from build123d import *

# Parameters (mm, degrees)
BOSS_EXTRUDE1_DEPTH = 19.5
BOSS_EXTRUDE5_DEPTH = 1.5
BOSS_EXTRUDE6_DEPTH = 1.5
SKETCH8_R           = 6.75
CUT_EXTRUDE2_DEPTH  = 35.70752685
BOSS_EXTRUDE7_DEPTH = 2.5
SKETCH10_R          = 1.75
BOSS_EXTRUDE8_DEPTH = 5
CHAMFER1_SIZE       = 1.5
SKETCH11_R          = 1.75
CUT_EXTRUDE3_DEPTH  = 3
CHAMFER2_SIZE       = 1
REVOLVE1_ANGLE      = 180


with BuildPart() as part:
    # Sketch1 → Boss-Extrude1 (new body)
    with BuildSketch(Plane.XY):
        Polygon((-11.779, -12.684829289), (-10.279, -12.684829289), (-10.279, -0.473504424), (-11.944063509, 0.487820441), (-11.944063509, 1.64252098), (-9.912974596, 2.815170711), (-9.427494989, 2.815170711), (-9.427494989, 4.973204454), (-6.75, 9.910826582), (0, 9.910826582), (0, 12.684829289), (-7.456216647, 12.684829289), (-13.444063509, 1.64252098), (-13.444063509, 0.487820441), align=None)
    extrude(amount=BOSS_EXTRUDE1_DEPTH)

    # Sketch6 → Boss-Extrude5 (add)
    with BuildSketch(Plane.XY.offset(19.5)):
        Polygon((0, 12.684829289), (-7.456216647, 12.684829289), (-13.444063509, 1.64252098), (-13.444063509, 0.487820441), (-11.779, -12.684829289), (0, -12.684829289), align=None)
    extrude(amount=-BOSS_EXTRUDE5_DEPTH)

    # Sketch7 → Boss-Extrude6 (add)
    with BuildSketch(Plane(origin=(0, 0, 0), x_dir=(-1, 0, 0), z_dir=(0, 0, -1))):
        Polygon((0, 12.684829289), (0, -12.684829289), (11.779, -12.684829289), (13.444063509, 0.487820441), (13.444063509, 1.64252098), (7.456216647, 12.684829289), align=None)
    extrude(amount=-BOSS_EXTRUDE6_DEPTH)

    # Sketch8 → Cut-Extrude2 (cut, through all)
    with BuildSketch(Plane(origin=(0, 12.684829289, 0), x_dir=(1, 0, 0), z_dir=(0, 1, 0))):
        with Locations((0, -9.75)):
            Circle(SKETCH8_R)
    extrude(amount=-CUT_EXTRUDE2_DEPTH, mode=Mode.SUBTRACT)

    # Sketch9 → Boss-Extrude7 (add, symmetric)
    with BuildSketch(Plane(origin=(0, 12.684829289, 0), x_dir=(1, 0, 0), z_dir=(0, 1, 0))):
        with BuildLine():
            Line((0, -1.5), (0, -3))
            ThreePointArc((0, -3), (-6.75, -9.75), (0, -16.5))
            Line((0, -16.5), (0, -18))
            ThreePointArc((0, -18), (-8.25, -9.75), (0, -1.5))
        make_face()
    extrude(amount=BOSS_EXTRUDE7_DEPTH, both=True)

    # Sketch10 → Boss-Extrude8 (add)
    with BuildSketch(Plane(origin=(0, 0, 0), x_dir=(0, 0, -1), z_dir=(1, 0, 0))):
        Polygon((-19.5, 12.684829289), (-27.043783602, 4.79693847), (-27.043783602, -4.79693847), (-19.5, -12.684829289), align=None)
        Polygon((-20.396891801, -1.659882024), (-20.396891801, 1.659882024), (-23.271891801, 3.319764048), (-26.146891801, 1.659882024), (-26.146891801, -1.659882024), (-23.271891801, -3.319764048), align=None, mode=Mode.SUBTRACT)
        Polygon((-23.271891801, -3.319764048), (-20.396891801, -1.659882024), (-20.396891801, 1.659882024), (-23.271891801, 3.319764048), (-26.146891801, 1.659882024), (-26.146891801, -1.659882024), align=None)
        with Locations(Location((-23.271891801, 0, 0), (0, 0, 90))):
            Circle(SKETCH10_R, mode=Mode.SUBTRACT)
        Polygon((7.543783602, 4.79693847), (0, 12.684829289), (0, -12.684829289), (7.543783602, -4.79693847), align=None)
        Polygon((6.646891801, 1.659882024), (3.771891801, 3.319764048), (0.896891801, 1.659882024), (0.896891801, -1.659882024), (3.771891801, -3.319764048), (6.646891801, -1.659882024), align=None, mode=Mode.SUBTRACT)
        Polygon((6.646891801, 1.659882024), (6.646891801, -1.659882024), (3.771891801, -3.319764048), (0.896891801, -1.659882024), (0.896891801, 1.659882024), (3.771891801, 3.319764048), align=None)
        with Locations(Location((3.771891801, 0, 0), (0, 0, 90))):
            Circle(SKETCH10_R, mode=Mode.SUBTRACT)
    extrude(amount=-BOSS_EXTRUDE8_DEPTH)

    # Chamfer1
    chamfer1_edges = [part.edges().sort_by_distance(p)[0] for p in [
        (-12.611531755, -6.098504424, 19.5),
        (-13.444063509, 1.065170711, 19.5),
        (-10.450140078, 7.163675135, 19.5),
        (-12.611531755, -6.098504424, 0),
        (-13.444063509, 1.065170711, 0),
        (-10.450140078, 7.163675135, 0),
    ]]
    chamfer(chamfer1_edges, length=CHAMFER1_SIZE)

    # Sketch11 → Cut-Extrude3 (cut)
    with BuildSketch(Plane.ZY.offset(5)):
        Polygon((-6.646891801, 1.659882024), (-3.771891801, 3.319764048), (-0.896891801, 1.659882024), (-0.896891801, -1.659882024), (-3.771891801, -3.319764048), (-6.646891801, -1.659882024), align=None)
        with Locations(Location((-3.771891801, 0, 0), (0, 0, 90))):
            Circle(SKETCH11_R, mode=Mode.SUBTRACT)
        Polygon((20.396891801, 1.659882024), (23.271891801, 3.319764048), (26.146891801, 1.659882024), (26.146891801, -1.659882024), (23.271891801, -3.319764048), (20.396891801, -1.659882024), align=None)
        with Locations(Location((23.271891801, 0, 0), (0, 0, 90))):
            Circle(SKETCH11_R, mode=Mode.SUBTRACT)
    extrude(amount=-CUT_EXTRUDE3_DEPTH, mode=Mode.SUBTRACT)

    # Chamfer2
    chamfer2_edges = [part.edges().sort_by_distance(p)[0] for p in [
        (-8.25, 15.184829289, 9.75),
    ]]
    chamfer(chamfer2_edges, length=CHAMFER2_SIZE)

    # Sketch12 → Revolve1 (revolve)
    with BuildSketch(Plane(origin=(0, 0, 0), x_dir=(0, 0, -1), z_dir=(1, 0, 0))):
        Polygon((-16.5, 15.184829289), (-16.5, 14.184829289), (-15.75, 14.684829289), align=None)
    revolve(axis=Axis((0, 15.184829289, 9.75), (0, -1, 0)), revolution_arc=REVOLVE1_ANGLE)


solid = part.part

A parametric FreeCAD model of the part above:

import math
import FreeCAD as App
import Part
import Sketcher

V = App.Vector
Q = App.Units.Quantity


def edges_at(feature, points):
    """Names of the edges that pass closest to the given points."""
    edges = feature.Shape.Edges
    near = lambda p: min(range(len(edges)), key=lambda i: edges[i].distToShape(Part.Vertex(*p))[0])
    return sorted({f"Edge{near(p) + 1}" for p in points})


def add_polygon(sketch, points):
    """Adds a closed chain of lines whose ends are joined by coincident constraints."""
    first, n = sketch.GeometryCount, len(points)
    for a, b in zip(points, points[1:] + points[:1]):
        sketch.addGeometry(Part.LineSegment(App.Vector(*a, 0), App.Vector(*b, 0)), False)
    for i in range(n):
        sketch.addConstraint(Sketcher.Constraint("Coincident", first + i, 2, first + (i + 1) % n, 1))

doc = App.newDocument("Part")
body = doc.addObject("PartDesign::Body", "Body")

# Sketch on XY plane
sketch1 = doc.addObject("Sketcher::SketchObject", "Sketch")
body.addObject(sketch1)
sketch1.AttachmentSupport = (doc.XY_Plane, [""])
sketch1.MapMode = "FlatFace"
add_polygon(sketch1, [(-11.779, -12.684829), (-10.279, -12.684829), (-10.279, -0.473504), (-11.944064, 0.48782), (-11.944064, 1.642521), (-9.912975, 2.815171), (-9.427495, 2.815171), (-9.427495, 4.973204), (-6.75, 9.910827), (0, 9.910827), (0, 12.684829), (-7.456217, 12.684829), (-13.444064, 1.642521), (-13.444064, 0.48782)])  # lines 0-13
sketch1.addConstraint([
    Sketcher.Constraint("Horizontal", 0),
    Sketcher.Constraint("Vertical", 1),
    Sketcher.Constraint("Vertical", 3),
    Sketcher.Constraint("Horizontal", 5),
    Sketcher.Constraint("Vertical", 6),
    Sketcher.Constraint("Horizontal", 8),
    Sketcher.Constraint("Vertical", 9),
    Sketcher.Constraint("Horizontal", 10),
    Sketcher.Constraint("Vertical", 12),
    Sketcher.Constraint("PointOnObject", 8, 2, -2),
    Sketcher.Constraint("Parallel", 7, 11),
    Sketcher.Constraint("Horizontal", 3, 2, 11, 2),
    Sketcher.Constraint("Horizontal", 2, 2, 12, 2),
    Sketcher.Constraint("Angle", 2, Q("150 deg")),
    Sketcher.Constraint("Angle", 4, Q("30 deg")),
    Sketcher.Constraint("DistanceX", 0, 1, 0, 2, 1.5),
    Sketcher.Constraint("DistanceX", 8, 1, 8, 2, 6.75),
    Sketcher.Constraint("DistanceY", 0, 2, 4, 2, 15.5),
    Sketcher.Constraint("DistanceX", 11, 2, 3, 2, 1.5),
    Sketcher.Constraint("DistanceY", 3, 1, 3, 2, 1.154701),
    Sketcher.Constraint("DistanceX", 0, 2, -1, 1, 10.279),
    Sketcher.Constraint("Distance", 4, 2.345299),
    Sketcher.Constraint("DistanceX", 5, 1, 5, 2, 0.48548),
    Sketcher.Constraint("Distance", 2, 1.92265),
    Sketcher.Constraint("DistanceX", 10, 2, 10, 1, 7.456217),
    Sketcher.Constraint("DistanceY", 6, 1, 6, 2, 2.158034),
    Sketcher.Constraint("DistanceY", 9, 1, 9, 2, 2.774003),
    Sketcher.Constraint("DistanceY", 0, 2, -1, 1, 12.684829),
])
pad1 = doc.addObject("PartDesign::Pad", "Pad")
body.addObject(pad1)
pad1.Profile = sketch1
pad1.Length = 19.5

# Sketch on XY plane
sketch2 = doc.addObject("Sketcher::SketchObject", "Sketch001")
body.addObject(sketch2)
sketch2.AttachmentSupport = (doc.XY_Plane, [""])
sketch2.MapMode = "FlatFace"
sketch2.AttachmentOffset = App.Placement(V(0, 0, 19.5), App.Rotation())
add_polygon(sketch2, [(0, 12.684829), (-7.456217, 12.684829), (-13.444064, 1.642521), (-13.444064, 0.48782), (-11.779, -12.684829), (0, -12.684829)])  # lines 0-5
sketch2.addConstraint([
    Sketcher.Constraint("Horizontal", 0),
    Sketcher.Constraint("Vertical", 2),
    Sketcher.Constraint("Horizontal", 4),
    Sketcher.Constraint("Vertical", 5),
    Sketcher.Constraint("Symmetric", 4, 2, 5, 2, -1, 1),
    Sketcher.Constraint("DistanceX", 4, 1, 4, 2, 11.779),
    Sketcher.Constraint("DistanceY", 2, 2, 2, 1, 1.154701),
    Sketcher.Constraint("DistanceY", 5, 1, 5, 2, 25.369659),
    Sketcher.Constraint("DistanceX", 0, 2, 0, 1, 7.456217),
    Sketcher.Constraint("DistanceY", -1, 1, 1, 2, 1.642521),
    Sketcher.Constraint("Distance", 1, 12.561325),
])
pad2 = doc.addObject("PartDesign::Pad", "Pad001")
body.addObject(pad2)
pad2.Profile = sketch2
pad2.Length = 1.5
pad2.Reversed = True

# Sketch on XY plane
sketch3 = doc.addObject("Sketcher::SketchObject", "Sketch002")
body.addObject(sketch3)
sketch3.AttachmentSupport = (doc.XY_Plane, [""])
sketch3.MapMode = "FlatFace"
add_polygon(sketch3, [(0, 12.684829), (0, -12.684829), (-11.779, -12.684829), (-13.444064, 0.48782), (-13.444064, 1.642521), (-7.456217, 12.684829)])  # lines 0-5
sketch3.addConstraint([
    Sketcher.Constraint("Vertical", 0),
    Sketcher.Constraint("Horizontal", 1),
    Sketcher.Constraint("Vertical", 3),
    Sketcher.Constraint("Horizontal", 5),
    Sketcher.Constraint("Symmetric", 0, 2, 5, 2, -1, 1),
    Sketcher.Constraint("DistanceX", 1, 2, 1, 1, 11.779),
    Sketcher.Constraint("DistanceY", 3, 1, 3, 2, 1.154701),
    Sketcher.Constraint("DistanceY", 0, 2, 0, 1, 25.369659),
    Sketcher.Constraint("DistanceX", 5, 1, 5, 2, 7.456217),
    Sketcher.Constraint("DistanceY", -1, 1, 2, 2, 0.48782),
    Sketcher.Constraint("Distance", 2, 13.277467),
])
pad3 = doc.addObject("PartDesign::Pad", "Pad002")
body.addObject(pad3)
pad3.Profile = sketch3
pad3.Length = 1.5

# Sketch on XZ plane
sketch4 = doc.addObject("Sketcher::SketchObject", "Sketch003")
body.addObject(sketch4)
sketch4.AttachmentSupport = (doc.XZ_Plane, [""])
sketch4.MapMode = "FlatFace"
sketch4.AttachmentOffset = App.Placement(V(0, 0, -12.684829), App.Rotation())
sketch4.addGeometry(Part.Circle(V(0, 9.75, 0), V(0, 0, 1), 6.75), False)
sketch4.addConstraint([
    Sketcher.Constraint("PointOnObject", 0, 3, -2),
    Sketcher.Constraint("Diameter", 0, 13.5),
    Sketcher.Constraint("DistanceY", -1, 1, 0, 3, 9.75),
])
pocket1 = doc.addObject("PartDesign::Pocket", "Pocket")
body.addObject(pocket1)
pocket1.Profile = sketch4
pocket1.Type = "ThroughAll"
pocket1.Reversed = True

# Sketch on XZ plane
sketch5 = doc.addObject("Sketcher::SketchObject", "Sketch004")
body.addObject(sketch5)
sketch5.AttachmentSupport = (doc.XZ_Plane, [""])
sketch5.MapMode = "FlatFace"
sketch5.AttachmentOffset = App.Placement(V(0, 0, -12.684829), App.Rotation())
sketch5.addGeometry([
    Part.LineSegment(V(0, 3, 0), V(0, 1.5, 0)),
    Part.ArcOfCircle(Part.Circle(V(0, 9.75, 0), V(0, 0, 1), 8.25), math.radians(90), math.radians(270)),
    Part.LineSegment(V(0, 18, 0), V(0, 16.5, 0)),
    Part.ArcOfCircle(Part.Circle(V(0, 9.75, 0), V(0, 0, 1), 6.75), math.radians(90), math.radians(270)),
], False)
sketch5.addConstraint([
    Sketcher.Constraint("Coincident", 0, 2, 1, 2),
    Sketcher.Constraint("Coincident", 1, 1, 2, 1),
    Sketcher.Constraint("Coincident", 2, 2, 3, 1),
    Sketcher.Constraint("Coincident", 3, 2, 0, 1),
    Sketcher.Constraint("Vertical", 0),
    Sketcher.Constraint("Vertical", 2),
    Sketcher.Constraint("Coincident", 3, 3, 1, 3),
    Sketcher.Constraint("PointOnObject", 1, 3, -2),
    Sketcher.Constraint("PointOnObject", 0, 2, -2),
    Sketcher.Constraint("PointOnObject", 1, 1, -2),
    Sketcher.Constraint("Radius", 1, 8.25),
    Sketcher.Constraint("Radius", 3, 6.75),
    Sketcher.Constraint("DistanceY", -1, 1, 1, 1, 18.0),
])
pad4 = doc.addObject("PartDesign::Pad", "Pad003")
body.addObject(pad4)
pad4.Profile = sketch5
pad4.Length = 5
pad4.Midplane = True

# Sketch on YZ plane
sketch6 = doc.addObject("Sketcher::SketchObject", "Sketch005")
body.addObject(sketch6)
sketch6.AttachmentSupport = (doc.YZ_Plane, [""])
sketch6.MapMode = "FlatFace"
add_polygon(sketch6, [(12.684829, 19.5), (4.796938, 27.043784), (-4.796938, 27.043784), (-12.684829, 19.5)])  # lines 0-3
sketch6.addGeometry(Part.Circle(V(0, 23.271892, 0), V(0, 0, 1), 1.75), False)  # 4
add_polygon(sketch6, [(4.796938, -7.543784), (12.684829, 0), (-12.684829, 0), (-4.796938, -7.543784)])  # lines 5-8
sketch6.addGeometry(Part.Circle(V(0, -3.771892, 0), V(0, 0, 1), 1.75), False)  # 9
sketch6.addConstraint([
    Sketcher.Constraint("Horizontal", 1),
    Sketcher.Constraint("Horizontal", 3),
    Sketcher.Constraint("Horizontal", 6),
    Sketcher.Constraint("Horizontal", 8),
    Sketcher.Constraint("Equal", 4, 9),
    Sketcher.Constraint("Symmetric", 5, 2, 6, 2, -1, 1),
    Sketcher.Constraint("PointOnObject", 4, 3, -2),
    Sketcher.Constraint("PointOnObject", 9, 3, -2),
    Sketcher.Constraint("Parallel", 2, 5),
    Sketcher.Constraint("Parallel", 0, 7),
    Sketcher.Constraint("Vertical", 3, 2, 5, 2),
    Sketcher.Constraint("Vertical", 2, 2, 6, 2),
    Sketcher.Constraint("Vertical", 1, 2, 7, 2),
    Sketcher.Constraint("Vertical", 0, 2, 8, 2),
    Sketcher.Constraint("Diameter", 4, 3.5),
    Sketcher.Constraint("DistanceY", -1, 1, 2, 2, 19.5),
    Sketcher.Constraint("DistanceX", 3, 1, 3, 2, 25.369659),
    Sketcher.Constraint("DistanceX", 1, 2, 1, 1, 9.593877),
    Sketcher.Constraint("DistanceY", -1, 1, 4, 3, 23.271892),
    Sketcher.Constraint("DistanceY", 9, 3, -1, 1, 3.771892),
    Sketcher.Constraint("DistanceY", 4, 3, 0, 2, 3.771892),
])
pad5 = doc.addObject("PartDesign::Pad", "Pad004")
body.addObject(pad5)
pad5.Profile = sketch6
pad5.Length = 5
pad5.Reversed = True
doc.recompute()

chamfer = doc.addObject("PartDesign::Chamfer", "Chamfer")
body.addObject(chamfer)
chamfer.Base = (pad5, edges_at(pad5, [
    (-12.612, -6.099, 19.5),
    (-13.444, 1.065, 19.5),
    (-10.45, 7.164, 19.5),
    (-12.612, -6.099, 0),
    (-13.444, 1.065, 0),
    (-10.45, 7.164, 0),
]))
chamfer.Size = 1.5

# Sketch on YZ plane
sketch7 = doc.addObject("Sketcher::SketchObject", "Sketch006")
body.addObject(sketch7)
sketch7.AttachmentSupport = (doc.YZ_Plane, [""])
sketch7.MapMode = "FlatFace"
sketch7.AttachmentOffset = App.Placement(V(0, 0, -5), App.Rotation())
add_polygon(sketch7, [(3.319764, -3.771892), (1.659882, -6.646892), (-1.659882, -6.646892), (-3.319764, -3.771892), (-1.659882, -0.896892), (1.659882, -0.896892)])  # lines 0-5
sketch7.addGeometry(Part.Circle(V(0, -3.771892, 0), V(0, 0, 1), 1.75), False)  # 6
add_polygon(sketch7, [(3.319764, 23.271892), (1.659882, 20.396892), (-1.659882, 20.396892), (-3.319764, 23.271892), (-1.659882, 26.146892), (1.659882, 26.146892)])  # lines 7-12
sketch7.addGeometry(Part.Circle(V(0, 23.271892, 0), V(0, 0, 1), 1.75), False)  # 13
sketch7.addConstraint([
    Sketcher.Constraint("Horizontal", 1),
    Sketcher.Constraint("Horizontal", 4),
    Sketcher.Constraint("Horizontal", 8),
    Sketcher.Constraint("Horizontal", 11),
    Sketcher.Constraint("Equal", 6, 13),
    Sketcher.Constraint("Symmetric", 2, 2, 5, 2, -2),
    Sketcher.Constraint("Symmetric", 9, 2, 12, 2, -2),
    Sketcher.Constraint("PointOnObject", 6, 3, -2),
    Sketcher.Constraint("PointOnObject", 13, 3, -2),
    Sketcher.Constraint("Parallel", 0, 3),
    Sketcher.Constraint("Parallel", 2, 5),
    Sketcher.Constraint("Parallel", 3, 7),
    Sketcher.Constraint("Parallel", 5, 9),
    Sketcher.Constraint("Parallel", 7, 10),
    Sketcher.Constraint("Parallel", 9, 12),
    Sketcher.Constraint("Horizontal", 6, 3, 2, 2),
    Sketcher.Constraint("Horizontal", 13, 3, 9, 2),
    Sketcher.Constraint("Vertical", 1, 2, 3, 2),
    Sketcher.Constraint("Vertical", 0, 2, 4, 2),
    Sketcher.Constraint("Vertical", 4, 2, 7, 2),
    Sketcher.Constraint("Vertical", 2, 2, 9, 2),
    Sketcher.Constraint("Vertical", 8, 2, 10, 2),
    Sketcher.Constraint("Diameter", 6, 3.5),
    Sketcher.Constraint("Angle", 0, Q("-120 deg")),
    Sketcher.Constraint("DistanceY", 1, 2, 3, 2, 5.75),
    Sketcher.Constraint("DistanceX", 1, 2, 1, 1, 3.319764),
    Sketcher.Constraint("DistanceY", 6, 3, -1, 1, 3.771892),
    Sketcher.Constraint("DistanceY", -1, 1, 13, 3, 23.271892),
])
pocket2 = doc.addObject("PartDesign::Pocket", "Pocket001")
body.addObject(pocket2)
pocket2.Profile = sketch7
pocket2.Length = 3
pocket2.Reversed = True
doc.recompute()

chamfer2 = doc.addObject("PartDesign::Chamfer", "Chamfer001")
body.addObject(chamfer2)
chamfer2.Base = (pocket2, edges_at(pocket2, [(-8.25, 15.185, 9.75)]))
chamfer2.Size = 1

# Sketch on YZ plane
sketch8 = doc.addObject("Sketcher::SketchObject", "Sketch007")
body.addObject(sketch8)
sketch8.AttachmentSupport = (doc.YZ_Plane, [""])
sketch8.MapMode = "FlatFace"
add_polygon(sketch8, [(15.184829, 16.5), (14.184829, 16.5), (14.684829, 15.75)])  # lines 0-2
sketch8.addGeometry(Part.LineSegment(V(15.184829, 9.75, 0), V(14.184829, 9.75, 0)), True)  # axis
sketch8.addConstraint([
    Sketcher.Constraint("Horizontal", 0),
    Sketcher.Constraint("Horizontal", 3),
    Sketcher.Constraint("Vertical", 2, 2, 3, 1),
    Sketcher.Constraint("Vertical", 0, 2, 3, 2),
    Sketcher.Constraint("Equal", 1, 2),
    Sketcher.Constraint("DistanceX", 0, 2, 0, 1, 1.0),
    Sketcher.Constraint("DistanceY", 3, 1, 1, 2, 6.0),
    Sketcher.Constraint("DistanceY", -1, 1, 0, 2, 16.5),
    Sketcher.Constraint("DistanceY", -1, 1, 1, 2, 15.75),
    Sketcher.Constraint("DistanceX", -1, 1, 0, 2, 14.184829),
])
revolution = doc.addObject("PartDesign::Revolution", "Revolution")
body.addObject(revolution)
revolution.Profile = sketch8
revolution.ReferenceAxis = (sketch8, ["Axis0"])
revolution.Angle = 180

doc.recompute()
